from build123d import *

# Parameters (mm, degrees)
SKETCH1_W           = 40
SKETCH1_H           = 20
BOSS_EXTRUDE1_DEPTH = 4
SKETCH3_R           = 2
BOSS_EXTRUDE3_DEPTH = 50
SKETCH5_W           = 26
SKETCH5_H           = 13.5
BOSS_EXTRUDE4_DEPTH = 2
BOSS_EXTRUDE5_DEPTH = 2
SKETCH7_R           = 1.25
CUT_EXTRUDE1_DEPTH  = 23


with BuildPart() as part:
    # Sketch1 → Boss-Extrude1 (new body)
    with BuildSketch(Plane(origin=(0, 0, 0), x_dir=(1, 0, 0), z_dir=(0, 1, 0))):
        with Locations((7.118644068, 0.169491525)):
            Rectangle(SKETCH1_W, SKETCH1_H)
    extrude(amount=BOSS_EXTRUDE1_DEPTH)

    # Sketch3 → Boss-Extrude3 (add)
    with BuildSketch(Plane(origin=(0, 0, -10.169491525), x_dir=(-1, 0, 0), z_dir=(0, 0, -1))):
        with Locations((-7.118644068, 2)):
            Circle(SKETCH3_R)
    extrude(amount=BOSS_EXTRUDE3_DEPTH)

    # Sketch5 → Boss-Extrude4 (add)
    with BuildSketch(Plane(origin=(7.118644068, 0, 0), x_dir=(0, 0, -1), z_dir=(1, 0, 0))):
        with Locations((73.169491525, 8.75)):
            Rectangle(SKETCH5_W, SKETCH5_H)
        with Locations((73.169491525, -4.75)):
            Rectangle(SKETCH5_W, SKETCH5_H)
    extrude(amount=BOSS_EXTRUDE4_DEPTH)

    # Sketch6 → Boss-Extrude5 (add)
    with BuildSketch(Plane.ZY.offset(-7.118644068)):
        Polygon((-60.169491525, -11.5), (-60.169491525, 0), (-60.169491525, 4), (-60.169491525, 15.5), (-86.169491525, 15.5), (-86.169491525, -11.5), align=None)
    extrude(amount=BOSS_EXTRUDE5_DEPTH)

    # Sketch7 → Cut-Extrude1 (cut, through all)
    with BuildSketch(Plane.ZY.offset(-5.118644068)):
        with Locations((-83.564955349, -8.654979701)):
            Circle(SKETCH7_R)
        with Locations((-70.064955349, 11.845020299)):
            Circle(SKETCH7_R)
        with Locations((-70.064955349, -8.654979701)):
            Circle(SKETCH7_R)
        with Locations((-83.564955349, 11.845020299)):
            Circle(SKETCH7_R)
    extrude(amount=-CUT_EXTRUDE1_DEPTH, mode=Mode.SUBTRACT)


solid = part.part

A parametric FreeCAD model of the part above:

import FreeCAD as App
import Part
import Sketcher
from FreeCAD import Vector

doc = App.newDocument("Part")
params = doc.addObject("Spreadsheet::Sheet", "Params")
for row, (alias, value) in enumerate([
    ("sketch1_width", "40 mm"),
    ("sketch1_height", "20 mm"),
    ("pad1_length", "4 mm"),
    ("sketch2_diameter", "4 mm"),
    ("pad2_length", "50 mm"),
    ("sketch3_width", "27 mm"),
    ("sketch3_height", "26 mm"),
    ("pad3_length", "2 mm"),
    ("sketch4_width", "27 mm"),
    ("sketch4_height", "26 mm"),
    ("pad4_length", "2 mm"),
    ("sketch5_diameter", "2.5 mm"),
], start=1):
    params.set(f"A{row}", alias)
    params.set(f"B{row}", "=" + value)
    params.setAlias(f"B{row}", alias)

body = doc.addObject("PartDesign::Body", "Body")

# Sketch on XZ plane
sketch1 = body.newObject("Sketcher::SketchObject", "Sketch")
sketch1.AttachmentSupport = (doc.getObject("XZ_Plane"), [""])
sketch1.MapMode = "FlatFace"
sketch1.addGeometry([
    Part.LineSegment(Vector(-13, -10, 0), Vector(-13, 10, 0)),
    Part.LineSegment(Vector(-13, 10, 0), Vector(27, 10, 0)),
    Part.LineSegment(Vector(27, 10, 0), Vector(27, -10, 0)),
    Part.LineSegment(Vector(27, -10, 0), Vector(-13, -10, 0)),
], False)
sketch1.addConstraint([
    Sketcher.Constraint("Coincident", 0, 2, 1, 1),
    Sketcher.Constraint("Coincident", 1, 2, 2, 1),
    Sketcher.Constraint("Coincident", 2, 2, 3, 1),
    Sketcher.Constraint("Coincident", 3, 2, 0, 1),
    Sketcher.Constraint("Vertical", 0),
    Sketcher.Constraint("Horizontal", 1),
    Sketcher.Constraint("Vertical", 2),
    Sketcher.Constraint("Horizontal", 3),
    Sketcher.Constraint("DistanceX", 1, 1, 1, 2, 40.0),
    Sketcher.Constraint("DistanceY", 0, 1, 0, 2, 20.0),
    Sketcher.Constraint("DistanceY", -1, 1, 0, 2, 9.830508),
    Sketcher.Constraint("DistanceX", 0, 2, -1, 1, 12.881356),
])
sketch1.setExpression("Constraints[8]", "Params.sketch1_width")
sketch1.setExpression("Constraints[9]", "Params.sketch1_height")
pad1 = body.newObject("PartDesign::Pad", "Pad")
pad1.Profile = sketch1
pad1.setExpression("Length", "Params.pad1_length")
pad1.Reversed = True

# Sketch on XY plane
sketch2 = body.newObject("Sketcher::SketchObject", "Sketch001")
sketch2.AttachmentSupport = (doc.getObject("XY_Plane"), [""])
sketch2.MapMode = "FlatFace"
sketch2.AttachmentOffset = App.Placement(Vector(0, 0, -10.169492), App.Rotation())
sketch2.addGeometry(Part.Circle(Vector(7.1, 2, 0), Vector(0, 0, 1), 2), False)
sketch2.addConstraint([
    Sketcher.Constraint("Diameter", 0, 4.0),
    Sketcher.Constraint("DistanceY", -1, 1, 0, 3, 2.0),
    Sketcher.Constraint("DistanceX", -1, 1, 0, 3, 7.118644),
])
sketch2.setExpression("Constraints[0]", "Params.sketch2_diameter")
pad2 = body.newObject("PartDesign::Pad", "Pad001")
pad2.Profile = sketch2
pad2.setExpression("Length", "Params.pad2_length")
pad2.Reversed = True

# Sketch on YZ plane
sketch3 = body.newObject("Sketcher::SketchObject", "Sketch002")
sketch3.AttachmentSupport = (doc.getObject("YZ_Plane"), [""])
sketch3.MapMode = "FlatFace"
sketch3.AttachmentOffset = App.Placement(Vector(0, 0, 7.118644), App.Rotation())
sketch3.addGeometry([
    Part.LineSegment(Vector(16, -60, 0), Vector(-12, -60, 0)),
    Part.LineSegment(Vector(-12, -60, 0), Vector(-12, -86, 0)),
    Part.LineSegment(Vector(-12, -86, 0), Vector(16, -86, 0)),
    Part.LineSegment(Vector(16, -86, 0), Vector(16, -60, 0)),
], False)
sketch3.addConstraint([
    Sketcher.Constraint("Coincident", 0, 2, 1, 1),
    Sketcher.Constraint("Coincident", 1, 2, 2, 1),
    Sketcher.Constraint("Coincident", 2, 2, 3, 1),
    Sketcher.Constraint("Coincident", 3, 2, 0, 1),
    Sketcher.Constraint("Horizontal", 0),
    Sketcher.Constraint("Vertical", 1),
    Sketcher.Constraint("Horizontal", 2),
    Sketcher.Constraint("Vertical", 3),
    Sketcher.Constraint("DistanceX", 0, 2, 0, 1, 27.0),
    Sketcher.Constraint("DistanceY", 1, 2, 1, 1, 26.0),
    Sketcher.Constraint("DistanceX", 0, 2, -1, 1, 11.5),
    Sketcher.Constraint("DistanceY", 0, 2, -1, 1, 60.169492),
])
sketch3.setExpression("Constraints[8]", "Params.sketch3_width")
sketch3.setExpression("Constraints[9]", "Params.sketch3_height")
pad3 = body.newObject("PartDesign::Pad", "Pad002")
pad3.Profile = sketch3
pad3.setExpression("Length", "Params.pad3_length")

# Sketch on YZ plane
sketch4 = body.newObject("Sketcher::SketchObject", "Sketch003")
sketch4.AttachmentSupport = (doc.getObject("YZ_Plane"), [""])
sketch4.MapMode = "FlatFace"
sketch4.AttachmentOffset = App.Placement(Vector(0, 0, 7.118644), App.Rotation())
sketch4.addGeometry([
    Part.LineSegment(Vector(-12, -60, 0), Vector(16, -60, 0)),
    Part.LineSegment(Vector(16, -60, 0), Vector(16, -86, 0)),
    Part.LineSegment(Vector(16, -86, 0), Vector(-12, -86, 0)),
    Part.LineSegment(Vector(-12, -86, 0), Vector(-12, -60, 0)),
], False)
sketch4.addConstraint([
    Sketcher.Constraint("Coincident", 0, 2, 1, 1),
    Sketcher.Constraint("Coincident", 1, 2, 2, 1),
    Sketcher.Constraint("Coincident", 2, 2, 3, 1),
    Sketcher.Constraint("Coincident", 3, 2, 0, 1),
    Sketcher.Constraint("Horizontal", 0),
    Sketcher.Constraint("Vertical", 1),
    Sketcher.Constraint("Horizontal", 2),
    Sketcher.Constraint("Vertical", 3),
    Sketcher.Constraint("DistanceX", 0, 1, 0, 2, 27.0),
    Sketcher.Constraint("DistanceY", 1, 2, 1, 1, 26.0),
    Sketcher.Constraint("DistanceX", -1, 1, 0, 2, 15.5),
    Sketcher.Constraint("DistanceY", 0, 2, -1, 1, 60.169492),
])
sketch4.setExpression("Constraints[8]", "Params.sketch4_width")
sketch4.setExpression("Constraints[9]", "Params.sketch4_height")
pad4 = body.newObject("PartDesign::Pad", "Pad003")
pad4.Profile = sketch4
pad4.setExpression("Length", "Params.pad4_length")
pad4.Reversed = True

# Sketch on YZ plane
sketch5 = body.newObject("Sketcher::SketchObject", "Sketch004")
sketch5.AttachmentSupport = (doc.getObject("YZ_Plane"), [""])
sketch5.MapMode = "FlatFace"
sketch5.AttachmentOffset = App.Placement(Vector(0, 0, 5.118644), App.Rotation())
sketch5.addGeometry([
    Part.Circle(Vector(-8.7, -83.6, 0), Vector(0, 0, 1), 1.2),
    Part.Circle(Vector(11.8, -70.1, 0), Vector(0, 0, 1), 1.2),
    Part.Circle(Vector(-8.7, -70.1, 0), Vector(0, 0, 1), 1.2),
    Part.Circle(Vector(11.8, -83.6, 0), Vector(0, 0, 1), 1.2),
], False)
sketch5.addConstraint([
    Sketcher.Constraint("Equal", 0, 1),
    Sketcher.Constraint("Equal", 1, 2),
    Sketcher.Constraint("Equal", 2, 3),
    Sketcher.Constraint("Horizontal", 1, 3, 2, 3),
    Sketcher.Constraint("Horizontal", 0, 3, 3, 3),
    Sketcher.Constraint("Vertical", 0, 3, 2, 3),
    Sketcher.Constraint("Vertical", 1, 3, 3, 3),
    Sketcher.Constraint("Diameter", 0, 2.5),
    Sketcher.Constraint("DistanceX", 0, 3, 1, 3, 20.5),
    Sketcher.Constraint("DistanceY", 0, 3, 1, 3, 13.5),
    Sketcher.Constraint("DistanceX", 0, 3, -1, 1, 8.65498),
    Sketcher.Constraint("DistanceY", 0, 3, -1, 1, 83.564955),
])
sketch5.setExpression("Constraints[7]", "Params.sketch5_diameter")
pocket1 = body.newObject("PartDesign::Pocket", "Pocket")
pocket1.Profile = sketch5
pocket1.Type = "ThroughAll"
pocket1.Reversed = True

doc.recompute()
